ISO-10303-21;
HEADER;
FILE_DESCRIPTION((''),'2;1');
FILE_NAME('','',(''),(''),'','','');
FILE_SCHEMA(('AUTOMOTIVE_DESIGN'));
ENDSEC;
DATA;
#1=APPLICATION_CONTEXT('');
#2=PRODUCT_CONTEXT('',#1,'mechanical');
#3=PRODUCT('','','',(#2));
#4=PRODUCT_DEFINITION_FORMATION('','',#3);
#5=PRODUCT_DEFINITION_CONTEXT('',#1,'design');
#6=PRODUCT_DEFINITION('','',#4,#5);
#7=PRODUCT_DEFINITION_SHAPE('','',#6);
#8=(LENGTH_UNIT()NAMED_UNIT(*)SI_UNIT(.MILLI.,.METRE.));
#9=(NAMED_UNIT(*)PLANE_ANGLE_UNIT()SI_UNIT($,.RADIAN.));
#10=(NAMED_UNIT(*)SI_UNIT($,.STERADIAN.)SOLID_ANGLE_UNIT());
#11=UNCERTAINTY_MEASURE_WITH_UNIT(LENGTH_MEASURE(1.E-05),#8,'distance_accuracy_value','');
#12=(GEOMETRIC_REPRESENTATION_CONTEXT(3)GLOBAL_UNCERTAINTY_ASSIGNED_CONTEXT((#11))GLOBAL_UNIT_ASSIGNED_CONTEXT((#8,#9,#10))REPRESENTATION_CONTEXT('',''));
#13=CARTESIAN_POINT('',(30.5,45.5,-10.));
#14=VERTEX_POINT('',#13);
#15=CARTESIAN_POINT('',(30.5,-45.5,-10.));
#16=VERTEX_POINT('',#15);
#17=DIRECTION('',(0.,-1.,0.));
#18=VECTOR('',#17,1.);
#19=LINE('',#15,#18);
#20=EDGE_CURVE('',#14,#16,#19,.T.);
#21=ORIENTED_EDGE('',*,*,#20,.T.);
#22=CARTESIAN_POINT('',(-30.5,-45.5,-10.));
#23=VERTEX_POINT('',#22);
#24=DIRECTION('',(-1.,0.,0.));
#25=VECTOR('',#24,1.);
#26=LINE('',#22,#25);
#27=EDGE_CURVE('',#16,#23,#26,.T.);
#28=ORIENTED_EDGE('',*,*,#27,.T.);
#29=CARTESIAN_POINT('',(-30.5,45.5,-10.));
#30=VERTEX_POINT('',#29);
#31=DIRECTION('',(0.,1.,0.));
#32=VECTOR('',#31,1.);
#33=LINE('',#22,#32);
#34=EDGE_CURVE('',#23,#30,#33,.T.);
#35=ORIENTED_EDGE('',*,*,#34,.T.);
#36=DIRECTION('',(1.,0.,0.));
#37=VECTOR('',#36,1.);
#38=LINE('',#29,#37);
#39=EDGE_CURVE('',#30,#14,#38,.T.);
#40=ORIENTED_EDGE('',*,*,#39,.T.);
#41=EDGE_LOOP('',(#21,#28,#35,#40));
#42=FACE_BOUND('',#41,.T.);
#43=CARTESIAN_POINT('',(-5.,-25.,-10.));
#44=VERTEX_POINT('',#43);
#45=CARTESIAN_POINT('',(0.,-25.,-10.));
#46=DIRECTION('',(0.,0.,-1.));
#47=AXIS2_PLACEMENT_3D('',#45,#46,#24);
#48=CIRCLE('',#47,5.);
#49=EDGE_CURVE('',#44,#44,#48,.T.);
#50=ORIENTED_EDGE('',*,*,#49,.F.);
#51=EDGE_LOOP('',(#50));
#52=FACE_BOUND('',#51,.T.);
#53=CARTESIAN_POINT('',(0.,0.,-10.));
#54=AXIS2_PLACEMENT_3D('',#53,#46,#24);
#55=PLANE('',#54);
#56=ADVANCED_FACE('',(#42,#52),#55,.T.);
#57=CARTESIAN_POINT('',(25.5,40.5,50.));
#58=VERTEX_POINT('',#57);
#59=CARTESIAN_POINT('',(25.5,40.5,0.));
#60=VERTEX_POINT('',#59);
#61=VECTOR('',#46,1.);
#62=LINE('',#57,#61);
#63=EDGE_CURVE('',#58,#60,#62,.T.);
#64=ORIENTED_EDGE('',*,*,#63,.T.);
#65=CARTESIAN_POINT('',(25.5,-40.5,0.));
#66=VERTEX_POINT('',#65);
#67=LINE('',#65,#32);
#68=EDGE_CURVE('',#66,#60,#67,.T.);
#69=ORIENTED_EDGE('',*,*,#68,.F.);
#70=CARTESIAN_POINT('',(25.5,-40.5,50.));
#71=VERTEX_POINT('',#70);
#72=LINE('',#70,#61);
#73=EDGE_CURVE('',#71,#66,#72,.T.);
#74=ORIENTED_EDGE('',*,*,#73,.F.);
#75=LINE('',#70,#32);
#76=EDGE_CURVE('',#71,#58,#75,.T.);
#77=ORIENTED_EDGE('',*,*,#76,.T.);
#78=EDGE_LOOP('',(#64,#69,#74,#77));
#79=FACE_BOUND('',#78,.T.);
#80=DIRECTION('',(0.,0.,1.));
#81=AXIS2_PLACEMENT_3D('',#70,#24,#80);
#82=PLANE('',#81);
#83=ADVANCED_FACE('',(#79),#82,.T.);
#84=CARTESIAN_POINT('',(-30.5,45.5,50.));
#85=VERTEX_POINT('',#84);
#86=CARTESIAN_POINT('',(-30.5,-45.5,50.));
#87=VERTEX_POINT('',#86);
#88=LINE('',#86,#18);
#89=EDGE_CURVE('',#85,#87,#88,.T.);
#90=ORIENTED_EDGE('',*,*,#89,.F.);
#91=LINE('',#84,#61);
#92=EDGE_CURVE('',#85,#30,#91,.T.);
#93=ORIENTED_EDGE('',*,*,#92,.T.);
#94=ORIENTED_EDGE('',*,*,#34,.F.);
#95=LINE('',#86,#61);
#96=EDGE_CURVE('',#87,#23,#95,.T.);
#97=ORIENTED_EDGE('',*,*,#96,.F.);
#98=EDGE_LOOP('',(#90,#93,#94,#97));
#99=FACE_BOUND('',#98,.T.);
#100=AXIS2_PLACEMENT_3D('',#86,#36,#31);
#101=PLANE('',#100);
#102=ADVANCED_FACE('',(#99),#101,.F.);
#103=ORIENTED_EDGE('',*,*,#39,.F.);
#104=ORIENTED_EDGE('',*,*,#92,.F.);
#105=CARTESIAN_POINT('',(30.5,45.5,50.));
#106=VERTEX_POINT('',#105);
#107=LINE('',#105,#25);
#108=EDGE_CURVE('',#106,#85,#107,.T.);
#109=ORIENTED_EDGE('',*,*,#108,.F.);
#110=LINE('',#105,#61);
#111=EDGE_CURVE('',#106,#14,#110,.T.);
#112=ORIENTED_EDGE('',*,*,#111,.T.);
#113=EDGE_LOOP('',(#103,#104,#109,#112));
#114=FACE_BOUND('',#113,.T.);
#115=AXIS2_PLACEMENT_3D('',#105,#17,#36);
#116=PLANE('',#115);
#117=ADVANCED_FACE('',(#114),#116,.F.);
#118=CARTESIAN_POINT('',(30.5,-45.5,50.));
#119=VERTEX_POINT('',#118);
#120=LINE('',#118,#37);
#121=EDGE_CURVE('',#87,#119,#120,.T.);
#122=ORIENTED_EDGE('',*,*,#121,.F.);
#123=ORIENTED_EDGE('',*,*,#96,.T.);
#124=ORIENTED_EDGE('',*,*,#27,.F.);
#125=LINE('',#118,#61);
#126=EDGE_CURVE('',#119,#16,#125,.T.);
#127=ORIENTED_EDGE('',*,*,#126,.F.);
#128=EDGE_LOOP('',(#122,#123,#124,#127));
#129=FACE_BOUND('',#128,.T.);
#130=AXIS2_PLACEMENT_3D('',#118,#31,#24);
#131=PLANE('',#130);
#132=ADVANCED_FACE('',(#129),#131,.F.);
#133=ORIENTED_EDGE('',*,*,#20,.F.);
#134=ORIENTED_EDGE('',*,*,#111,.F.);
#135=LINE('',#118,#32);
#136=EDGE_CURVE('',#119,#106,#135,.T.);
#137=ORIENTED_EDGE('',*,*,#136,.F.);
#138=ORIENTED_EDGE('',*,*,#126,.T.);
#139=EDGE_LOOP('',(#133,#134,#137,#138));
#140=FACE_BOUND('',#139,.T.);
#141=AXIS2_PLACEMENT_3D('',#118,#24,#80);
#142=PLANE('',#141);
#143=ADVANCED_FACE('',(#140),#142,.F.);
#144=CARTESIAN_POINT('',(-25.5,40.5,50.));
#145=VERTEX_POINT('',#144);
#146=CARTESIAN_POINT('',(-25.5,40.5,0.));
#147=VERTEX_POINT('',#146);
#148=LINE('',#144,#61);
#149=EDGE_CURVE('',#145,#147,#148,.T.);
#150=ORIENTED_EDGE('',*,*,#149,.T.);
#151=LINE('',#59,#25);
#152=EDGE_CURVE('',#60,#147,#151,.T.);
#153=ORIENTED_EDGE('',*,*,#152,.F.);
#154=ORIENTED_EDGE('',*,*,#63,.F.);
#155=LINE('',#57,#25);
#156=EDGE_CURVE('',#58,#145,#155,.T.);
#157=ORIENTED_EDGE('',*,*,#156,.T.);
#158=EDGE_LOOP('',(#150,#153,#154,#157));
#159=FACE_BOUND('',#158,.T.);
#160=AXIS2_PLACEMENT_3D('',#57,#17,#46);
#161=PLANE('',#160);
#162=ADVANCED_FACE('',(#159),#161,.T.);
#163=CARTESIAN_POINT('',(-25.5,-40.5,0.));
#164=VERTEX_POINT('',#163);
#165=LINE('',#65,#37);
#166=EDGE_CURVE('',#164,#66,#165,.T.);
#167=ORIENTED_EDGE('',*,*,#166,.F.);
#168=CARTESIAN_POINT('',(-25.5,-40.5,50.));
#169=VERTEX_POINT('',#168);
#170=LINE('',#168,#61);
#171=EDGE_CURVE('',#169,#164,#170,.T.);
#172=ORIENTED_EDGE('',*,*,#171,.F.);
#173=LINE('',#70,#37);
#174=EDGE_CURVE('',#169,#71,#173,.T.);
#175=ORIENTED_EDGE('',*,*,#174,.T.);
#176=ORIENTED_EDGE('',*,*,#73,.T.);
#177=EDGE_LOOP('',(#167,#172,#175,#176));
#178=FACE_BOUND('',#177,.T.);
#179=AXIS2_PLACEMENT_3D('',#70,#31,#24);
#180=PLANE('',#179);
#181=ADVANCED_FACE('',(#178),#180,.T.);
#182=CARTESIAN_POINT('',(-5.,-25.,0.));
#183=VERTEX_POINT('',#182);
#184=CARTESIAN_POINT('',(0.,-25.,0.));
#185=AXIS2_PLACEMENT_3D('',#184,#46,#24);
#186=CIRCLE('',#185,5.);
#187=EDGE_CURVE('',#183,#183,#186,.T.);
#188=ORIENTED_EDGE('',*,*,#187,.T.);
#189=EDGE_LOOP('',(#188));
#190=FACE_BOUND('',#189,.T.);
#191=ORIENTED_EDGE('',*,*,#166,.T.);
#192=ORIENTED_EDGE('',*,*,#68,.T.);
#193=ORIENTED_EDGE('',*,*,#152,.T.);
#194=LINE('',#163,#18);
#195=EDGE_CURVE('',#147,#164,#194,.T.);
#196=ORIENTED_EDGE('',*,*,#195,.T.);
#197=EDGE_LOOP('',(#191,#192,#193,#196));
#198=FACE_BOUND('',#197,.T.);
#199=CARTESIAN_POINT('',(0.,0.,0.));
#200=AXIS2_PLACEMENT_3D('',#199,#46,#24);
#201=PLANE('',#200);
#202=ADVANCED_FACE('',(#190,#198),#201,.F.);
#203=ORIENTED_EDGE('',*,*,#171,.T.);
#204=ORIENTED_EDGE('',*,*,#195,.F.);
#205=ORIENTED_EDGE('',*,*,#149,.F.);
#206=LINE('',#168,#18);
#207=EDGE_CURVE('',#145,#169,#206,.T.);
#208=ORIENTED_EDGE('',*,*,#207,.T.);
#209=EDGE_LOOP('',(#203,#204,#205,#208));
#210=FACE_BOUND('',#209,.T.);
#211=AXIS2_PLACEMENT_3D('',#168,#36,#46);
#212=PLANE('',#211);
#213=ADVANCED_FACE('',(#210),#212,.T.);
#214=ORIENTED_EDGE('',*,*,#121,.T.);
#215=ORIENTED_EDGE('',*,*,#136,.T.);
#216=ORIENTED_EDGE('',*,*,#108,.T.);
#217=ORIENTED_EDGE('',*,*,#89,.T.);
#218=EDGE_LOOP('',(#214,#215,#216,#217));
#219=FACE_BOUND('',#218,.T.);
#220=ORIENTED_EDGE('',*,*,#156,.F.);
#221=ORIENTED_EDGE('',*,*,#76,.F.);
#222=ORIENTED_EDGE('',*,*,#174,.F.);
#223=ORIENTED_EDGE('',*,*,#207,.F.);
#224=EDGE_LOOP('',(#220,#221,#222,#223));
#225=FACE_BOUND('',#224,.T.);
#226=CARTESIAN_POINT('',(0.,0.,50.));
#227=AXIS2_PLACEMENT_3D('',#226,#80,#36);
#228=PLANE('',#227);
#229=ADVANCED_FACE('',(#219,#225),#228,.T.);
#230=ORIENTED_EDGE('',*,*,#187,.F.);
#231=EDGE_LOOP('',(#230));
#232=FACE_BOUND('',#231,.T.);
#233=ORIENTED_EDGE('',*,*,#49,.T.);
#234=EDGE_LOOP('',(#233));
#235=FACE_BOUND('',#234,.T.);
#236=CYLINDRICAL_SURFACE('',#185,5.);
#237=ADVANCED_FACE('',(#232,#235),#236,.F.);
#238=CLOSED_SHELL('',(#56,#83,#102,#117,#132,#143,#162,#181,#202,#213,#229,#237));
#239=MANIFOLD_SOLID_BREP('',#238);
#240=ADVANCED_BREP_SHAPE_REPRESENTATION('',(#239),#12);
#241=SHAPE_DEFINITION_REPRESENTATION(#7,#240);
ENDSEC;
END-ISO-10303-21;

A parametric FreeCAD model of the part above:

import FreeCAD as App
import Part
import Sketcher


def add_polygon(sketch, points):
    """Adds a closed chain of lines whose ends are joined by coincident constraints."""
    first, n = sketch.GeometryCount, len(points)
    for a, b in zip(points, points[1:] + points[:1]):
        sketch.addGeometry(Part.LineSegment(App.Vector(*a, 0), App.Vector(*b, 0)), False)
    for i in range(n):
        sketch.addConstraint(Sketcher.Constraint("Coincident", first + i, 2, first + (i + 1) % n, 1))

doc = App.newDocument("Part")
body = doc.addObject("PartDesign::Body", "Body")

sketch1 = body.newObject("Sketcher::SketchObject", "Sketch")
sketch1.AttachmentSupport = (doc.getObject("XY_Plane"), [""])
sketch1.MapMode = "FlatFace"
add_polygon(sketch1, [(-30, 46), (-30, -46), (30, -46), (30, 46)])
add_polygon(sketch1, [(26, -40), (-26, -40), (-26, 40), (26, 40)])
sketch1.addConstraint([
    Sketcher.Constraint("Vertical", 0),
    Sketcher.Constraint("Horizontal", 1),
    Sketcher.Constraint("Vertical", 2),
    Sketcher.Constraint("Horizontal", 3),
    Sketcher.Constraint("Horizontal", 4),
    Sketcher.Constraint("Vertical", 5),
    Sketcher.Constraint("Horizontal", 6),
    Sketcher.Constraint("Vertical", 7),
    Sketcher.Constraint("Symmetric", 0, 2, 2, 2, -1, 1),
    Sketcher.Constraint("Symmetric", 4, 2, 6, 2, -1, 1),
    Sketcher.Constraint("DistanceX", 1, 1, 1, 2, 61.0),
    Sketcher.Constraint("DistanceX", 4, 2, 4, 1, 51.0),
    Sketcher.Constraint("DistanceY", 0, 2, 0, 1, 91.0),
    Sketcher.Constraint("DistanceY", 5, 1, 5, 2, 81.0),
])
pad1 = body.newObject("PartDesign::Pad", "Pad")
pad1.Profile = sketch1
pad1.Length = 50

sketch2 = body.newObject("Sketcher::SketchObject", "Sketch001")
sketch2.AttachmentSupport = (doc.getObject("XY_Plane"), [""])
sketch2.MapMode = "FlatFace"
add_polygon(sketch2, [(30, 46), (30, -46), (-30, -46), (-30, 46)])
sketch2.addConstraint([
    Sketcher.Constraint("Vertical", 0),
    Sketcher.Constraint("Horizontal", 1),
    Sketcher.Constraint("Vertical", 2),
    Sketcher.Constraint("Horizontal", 3),
    Sketcher.Constraint("Symmetric", 0, 2, 2, 2, -1, 1),
    Sketcher.Constraint("DistanceX", 1, 2, 1, 1, 61.0),
    Sketcher.Constraint("DistanceY", 0, 2, 0, 1, 91.0),
])
pad2 = body.newObject("PartDesign::Pad", "Pad001")
pad2.Profile = sketch2
pad2.Length = 10
pad2.Reversed = True

sketch3 = body.newObject("Sketcher::SketchObject", "Sketch002")
sketch3.AttachmentSupport = (doc.getObject("XY_Plane"), [""])
sketch3.MapMode = "FlatFace"
sketch3.AttachmentOffset = App.Placement(App.Vector(0, 0, -10), App.Rotation())
sketch3.addGeometry(Part.Circle(App.Vector(0, -25, 0), App.Vector(0, 0, 1), 5), False)
sketch3.addConstraint([
    Sketcher.Constraint("PointOnObject", 0, 3, -2),
    Sketcher.Constraint("Diameter", 0, 10.0),
    Sketcher.Constraint("DistanceY", 0, 3, -1, 1, 25.0),
])
pocket1 = body.newObject("PartDesign::Pocket", "Pocket")
pocket1.Profile = sketch3
pocket1.Length = 10
pocket1.Reversed = True

doc.recompute()
